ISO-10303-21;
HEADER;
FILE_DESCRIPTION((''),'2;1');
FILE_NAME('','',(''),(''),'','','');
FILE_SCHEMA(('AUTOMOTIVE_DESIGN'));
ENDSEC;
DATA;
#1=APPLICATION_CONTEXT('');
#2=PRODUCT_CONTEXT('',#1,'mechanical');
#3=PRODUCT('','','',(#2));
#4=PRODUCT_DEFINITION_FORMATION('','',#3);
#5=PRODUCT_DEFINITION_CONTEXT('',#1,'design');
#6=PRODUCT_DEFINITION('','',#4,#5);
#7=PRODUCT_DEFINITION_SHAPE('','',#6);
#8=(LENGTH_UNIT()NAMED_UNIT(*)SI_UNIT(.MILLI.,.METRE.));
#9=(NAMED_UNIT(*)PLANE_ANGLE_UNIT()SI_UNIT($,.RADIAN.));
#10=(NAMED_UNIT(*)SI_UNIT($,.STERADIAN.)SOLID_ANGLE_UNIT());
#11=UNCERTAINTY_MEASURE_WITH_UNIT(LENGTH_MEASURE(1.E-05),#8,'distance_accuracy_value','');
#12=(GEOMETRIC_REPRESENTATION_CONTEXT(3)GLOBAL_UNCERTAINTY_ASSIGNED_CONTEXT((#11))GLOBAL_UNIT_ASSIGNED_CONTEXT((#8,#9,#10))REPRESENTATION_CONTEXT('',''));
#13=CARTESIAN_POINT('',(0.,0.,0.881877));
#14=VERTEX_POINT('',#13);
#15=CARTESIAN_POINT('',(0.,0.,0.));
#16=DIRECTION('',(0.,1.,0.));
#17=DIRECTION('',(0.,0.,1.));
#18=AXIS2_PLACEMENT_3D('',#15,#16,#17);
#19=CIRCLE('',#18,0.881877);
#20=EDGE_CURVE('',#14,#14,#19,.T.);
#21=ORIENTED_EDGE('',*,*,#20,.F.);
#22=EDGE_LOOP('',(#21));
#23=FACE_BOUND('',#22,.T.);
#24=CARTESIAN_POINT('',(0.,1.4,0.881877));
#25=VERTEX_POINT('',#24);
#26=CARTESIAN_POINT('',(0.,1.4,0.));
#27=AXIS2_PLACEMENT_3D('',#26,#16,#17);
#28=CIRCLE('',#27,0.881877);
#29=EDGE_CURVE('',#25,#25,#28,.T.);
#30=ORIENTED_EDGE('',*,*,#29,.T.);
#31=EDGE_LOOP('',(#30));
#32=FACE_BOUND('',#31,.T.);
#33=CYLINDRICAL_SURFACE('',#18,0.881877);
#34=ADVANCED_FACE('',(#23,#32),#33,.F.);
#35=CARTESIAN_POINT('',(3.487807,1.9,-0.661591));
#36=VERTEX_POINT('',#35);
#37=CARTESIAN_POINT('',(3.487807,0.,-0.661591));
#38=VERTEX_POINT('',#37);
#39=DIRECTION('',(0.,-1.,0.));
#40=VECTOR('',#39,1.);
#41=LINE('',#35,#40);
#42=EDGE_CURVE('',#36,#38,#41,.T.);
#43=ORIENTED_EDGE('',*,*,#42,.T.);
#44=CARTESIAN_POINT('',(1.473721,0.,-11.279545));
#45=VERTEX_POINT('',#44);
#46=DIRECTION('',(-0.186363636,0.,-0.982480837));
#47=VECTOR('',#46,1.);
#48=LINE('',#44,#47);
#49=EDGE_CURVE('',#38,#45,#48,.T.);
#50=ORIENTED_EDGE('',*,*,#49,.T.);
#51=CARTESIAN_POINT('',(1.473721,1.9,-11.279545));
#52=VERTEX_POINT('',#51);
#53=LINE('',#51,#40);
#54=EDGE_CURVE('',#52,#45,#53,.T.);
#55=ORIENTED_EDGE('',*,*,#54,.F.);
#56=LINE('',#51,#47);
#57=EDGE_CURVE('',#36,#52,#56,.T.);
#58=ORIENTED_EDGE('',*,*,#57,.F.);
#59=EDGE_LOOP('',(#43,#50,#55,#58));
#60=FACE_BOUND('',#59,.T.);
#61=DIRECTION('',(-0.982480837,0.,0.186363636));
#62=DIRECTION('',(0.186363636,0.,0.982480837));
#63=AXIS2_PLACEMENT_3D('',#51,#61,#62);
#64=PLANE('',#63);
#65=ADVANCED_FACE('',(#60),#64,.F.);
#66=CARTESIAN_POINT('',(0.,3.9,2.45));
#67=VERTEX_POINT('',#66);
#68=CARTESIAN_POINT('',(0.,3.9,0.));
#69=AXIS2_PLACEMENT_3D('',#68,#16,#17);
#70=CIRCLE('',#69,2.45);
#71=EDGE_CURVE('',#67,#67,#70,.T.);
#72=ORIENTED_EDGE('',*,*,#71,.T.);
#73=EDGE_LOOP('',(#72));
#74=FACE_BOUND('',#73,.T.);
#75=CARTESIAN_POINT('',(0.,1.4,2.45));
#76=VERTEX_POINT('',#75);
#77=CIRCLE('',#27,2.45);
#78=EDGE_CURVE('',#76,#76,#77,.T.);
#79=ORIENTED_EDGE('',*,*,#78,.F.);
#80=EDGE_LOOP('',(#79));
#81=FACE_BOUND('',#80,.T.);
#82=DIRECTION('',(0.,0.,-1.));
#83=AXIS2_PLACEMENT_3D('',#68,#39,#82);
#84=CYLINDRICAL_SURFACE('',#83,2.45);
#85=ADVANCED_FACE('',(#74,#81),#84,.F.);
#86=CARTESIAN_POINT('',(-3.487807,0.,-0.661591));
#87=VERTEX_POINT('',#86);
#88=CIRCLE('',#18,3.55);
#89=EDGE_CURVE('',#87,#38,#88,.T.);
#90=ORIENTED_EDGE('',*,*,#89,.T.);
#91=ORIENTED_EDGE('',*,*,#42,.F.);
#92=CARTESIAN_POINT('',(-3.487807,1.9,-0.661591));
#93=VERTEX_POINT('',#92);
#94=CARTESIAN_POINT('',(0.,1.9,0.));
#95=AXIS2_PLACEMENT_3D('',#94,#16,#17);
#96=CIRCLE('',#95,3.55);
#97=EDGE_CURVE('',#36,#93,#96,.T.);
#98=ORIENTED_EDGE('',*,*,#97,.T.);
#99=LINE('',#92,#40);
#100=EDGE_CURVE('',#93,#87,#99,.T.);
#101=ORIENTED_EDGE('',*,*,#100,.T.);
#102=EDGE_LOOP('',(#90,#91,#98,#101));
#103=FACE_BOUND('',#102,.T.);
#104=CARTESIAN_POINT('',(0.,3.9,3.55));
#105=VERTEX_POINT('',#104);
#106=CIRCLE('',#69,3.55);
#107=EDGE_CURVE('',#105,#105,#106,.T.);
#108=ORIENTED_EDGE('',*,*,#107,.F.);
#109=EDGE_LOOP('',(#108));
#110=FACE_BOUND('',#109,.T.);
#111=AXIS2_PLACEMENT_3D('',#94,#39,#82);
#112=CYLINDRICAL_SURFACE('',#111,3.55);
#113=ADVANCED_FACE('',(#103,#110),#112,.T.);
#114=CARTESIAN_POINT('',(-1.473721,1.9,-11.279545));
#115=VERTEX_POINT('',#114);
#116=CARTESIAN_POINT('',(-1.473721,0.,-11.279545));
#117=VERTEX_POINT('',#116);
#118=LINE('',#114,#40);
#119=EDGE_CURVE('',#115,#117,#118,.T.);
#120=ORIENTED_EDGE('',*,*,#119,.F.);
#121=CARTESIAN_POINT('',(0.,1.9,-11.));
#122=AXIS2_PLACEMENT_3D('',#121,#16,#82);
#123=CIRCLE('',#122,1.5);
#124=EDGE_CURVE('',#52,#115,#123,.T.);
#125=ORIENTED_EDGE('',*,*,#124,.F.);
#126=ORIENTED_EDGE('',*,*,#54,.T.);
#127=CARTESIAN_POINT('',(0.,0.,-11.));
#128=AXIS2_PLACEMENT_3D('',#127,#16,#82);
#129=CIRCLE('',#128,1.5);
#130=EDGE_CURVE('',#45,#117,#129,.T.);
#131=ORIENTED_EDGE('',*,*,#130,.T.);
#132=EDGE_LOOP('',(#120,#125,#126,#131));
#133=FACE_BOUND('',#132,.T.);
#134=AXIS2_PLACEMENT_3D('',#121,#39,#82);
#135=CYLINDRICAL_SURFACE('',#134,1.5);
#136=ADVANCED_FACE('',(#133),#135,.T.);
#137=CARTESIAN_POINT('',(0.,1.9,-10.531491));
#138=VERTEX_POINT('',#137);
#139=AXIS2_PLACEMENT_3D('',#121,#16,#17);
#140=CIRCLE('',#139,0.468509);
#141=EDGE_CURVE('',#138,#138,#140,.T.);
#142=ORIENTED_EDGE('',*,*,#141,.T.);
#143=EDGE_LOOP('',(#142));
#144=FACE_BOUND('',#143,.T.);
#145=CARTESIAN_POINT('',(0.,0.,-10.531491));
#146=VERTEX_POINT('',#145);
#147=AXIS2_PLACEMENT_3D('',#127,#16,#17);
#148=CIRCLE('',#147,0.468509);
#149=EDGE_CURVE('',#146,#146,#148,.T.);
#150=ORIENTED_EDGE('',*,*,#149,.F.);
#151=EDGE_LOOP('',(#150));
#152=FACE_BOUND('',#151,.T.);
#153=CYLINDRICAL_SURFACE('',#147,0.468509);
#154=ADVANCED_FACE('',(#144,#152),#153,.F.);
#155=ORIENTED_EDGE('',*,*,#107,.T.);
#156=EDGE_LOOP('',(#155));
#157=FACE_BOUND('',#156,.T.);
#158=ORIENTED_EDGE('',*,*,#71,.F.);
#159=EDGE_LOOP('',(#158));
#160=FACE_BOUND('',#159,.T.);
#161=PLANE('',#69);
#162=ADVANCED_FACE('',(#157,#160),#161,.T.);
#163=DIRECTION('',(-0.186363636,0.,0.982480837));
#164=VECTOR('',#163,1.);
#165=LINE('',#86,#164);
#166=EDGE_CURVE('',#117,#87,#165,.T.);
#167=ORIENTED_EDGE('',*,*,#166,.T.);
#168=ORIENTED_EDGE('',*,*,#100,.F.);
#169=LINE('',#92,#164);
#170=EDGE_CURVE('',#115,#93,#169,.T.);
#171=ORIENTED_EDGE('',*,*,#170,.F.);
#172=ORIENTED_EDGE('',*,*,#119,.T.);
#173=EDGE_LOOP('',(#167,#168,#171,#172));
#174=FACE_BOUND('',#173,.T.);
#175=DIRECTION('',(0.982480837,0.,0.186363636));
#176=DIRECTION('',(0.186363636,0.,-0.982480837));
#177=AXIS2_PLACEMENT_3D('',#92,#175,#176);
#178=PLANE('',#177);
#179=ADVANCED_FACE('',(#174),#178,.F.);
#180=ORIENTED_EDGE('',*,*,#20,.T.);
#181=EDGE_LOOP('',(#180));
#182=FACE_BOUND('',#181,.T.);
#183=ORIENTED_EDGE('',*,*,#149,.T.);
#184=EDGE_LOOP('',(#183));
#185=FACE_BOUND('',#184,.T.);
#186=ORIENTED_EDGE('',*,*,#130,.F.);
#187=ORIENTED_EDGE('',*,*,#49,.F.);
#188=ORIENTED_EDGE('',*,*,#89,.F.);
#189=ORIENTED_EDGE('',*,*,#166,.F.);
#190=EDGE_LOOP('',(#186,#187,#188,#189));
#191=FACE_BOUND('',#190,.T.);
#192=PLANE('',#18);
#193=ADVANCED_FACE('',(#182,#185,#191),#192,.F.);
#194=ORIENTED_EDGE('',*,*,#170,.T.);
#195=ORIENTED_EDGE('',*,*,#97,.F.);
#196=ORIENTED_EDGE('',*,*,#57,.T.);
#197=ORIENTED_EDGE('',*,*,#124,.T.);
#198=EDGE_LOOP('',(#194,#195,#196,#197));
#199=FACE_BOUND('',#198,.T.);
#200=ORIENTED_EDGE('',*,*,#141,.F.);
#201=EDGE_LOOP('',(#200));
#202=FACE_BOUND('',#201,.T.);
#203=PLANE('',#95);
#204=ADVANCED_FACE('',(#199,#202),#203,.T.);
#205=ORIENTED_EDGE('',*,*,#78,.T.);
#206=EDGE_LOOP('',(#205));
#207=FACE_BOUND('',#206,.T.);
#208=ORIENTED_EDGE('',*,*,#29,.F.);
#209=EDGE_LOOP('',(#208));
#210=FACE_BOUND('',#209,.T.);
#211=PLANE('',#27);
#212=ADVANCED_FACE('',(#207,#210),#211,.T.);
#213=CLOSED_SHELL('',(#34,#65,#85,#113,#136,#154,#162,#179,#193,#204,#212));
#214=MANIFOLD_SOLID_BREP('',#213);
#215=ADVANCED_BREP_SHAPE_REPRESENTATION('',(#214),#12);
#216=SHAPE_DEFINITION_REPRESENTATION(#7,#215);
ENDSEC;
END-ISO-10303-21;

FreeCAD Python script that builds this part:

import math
import FreeCAD as App
import Part
import Sketcher

V = App.Vector

doc = App.newDocument("Part")
body = doc.addObject("PartDesign::Body", "Body")

sketch1 = body.newObject("Sketcher::SketchObject", "Sketch")
sketch1.AttachmentSupport = (doc.getObject("XZ_Plane"), [""])
sketch1.MapMode = "FlatFace"
sketch1.addGeometry([
    Part.LineSegment(V(-1.5, -11.3, 0), V(-3.5, -0.7, 0)),
    Part.ArcOfCircle(Part.Circle(V(0, 0, 0), V(0, 0, 1), 3.5), math.radians(-11), math.radians(191)),
    Part.LineSegment(V(3.5, -0.7, 0), V(1.5, -11.3, 0)),
    Part.ArcOfCircle(Part.Circle(V(0, -11, 0), V(0, 0, 1), 1.5), math.radians(-169), math.radians(-11)),
], False)
sketch1.addConstraint([
    Sketcher.Constraint("Tangent", 0, 2, 1, 2),
    Sketcher.Constraint("Tangent", 1, 1, 2, 1),
    Sketcher.Constraint("Tangent", 2, 2, 3, 2),
    Sketcher.Constraint("Tangent", 3, 1, 0, 1),
    Sketcher.Constraint("Coincident", 1, 3, -1, 1),
    Sketcher.Constraint("PointOnObject", 3, 3, -2),
    Sketcher.Constraint("Radius", 3, 1.5),
    Sketcher.Constraint("Radius", 1, 3.55),
    Sketcher.Constraint("DistanceY", 3, 3, -1, 1, 11.0),
])
pad1 = body.newObject("PartDesign::Pad", "Pad")
pad1.Profile = sketch1
pad1.Length = 1.9
pad1.Reversed = True

sketch2 = body.newObject("Sketcher::SketchObject", "Sketch001")
sketch2.AttachmentSupport = (doc.getObject("XZ_Plane"), [""])
sketch2.MapMode = "FlatFace"
sketch2.AttachmentOffset = App.Placement(V(0, 0, -1.9), App.Rotation())
sketch2.addGeometry([
    Part.Circle(V(0, 0, 0), V(0, 0, 1), 3.5),
    Part.Circle(V(0, 0, 0), V(0, 0, 1), 2.5),
], False)
sketch2.addConstraint([
    Sketcher.Constraint("Coincident", 0, 3, -1, 1),
    Sketcher.Constraint("Coincident", 1, 3, -1, 1),
    Sketcher.Constraint("Diameter", 0, 7.1),
    Sketcher.Constraint("Diameter", 1, 4.9),
])
pad2 = body.newObject("PartDesign::Pad", "Pad001")
pad2.Profile = sketch2
pad2.Length = 2
pad2.Reversed = True

sketch3 = body.newObject("Sketcher::SketchObject", "Sketch002")
sketch3.AttachmentSupport = (doc.getObject("XZ_Plane"), [""])
sketch3.MapMode = "FlatFace"
sketch3.AttachmentOffset = App.Placement(V(0, 0, -1.4), App.Rotation())
sketch3.addGeometry(Part.Circle(V(0, 0, 0), V(0, 0, 1), 2.5), False)
sketch3.addConstraint([
    Sketcher.Constraint("Coincident", 0, 3, -1, 1),
    Sketcher.Constraint("Diameter", 0, 4.9),
])
pocket1 = body.newObject("PartDesign::Pocket", "Pocket")
pocket1.Profile = sketch3
pocket1.Length = 2.5

sketch4 = body.newObject("Sketcher::SketchObject", "Sketch003")
sketch4.AttachmentSupport = (doc.getObject("XZ_Plane"), [""])
sketch4.MapMode = "FlatFace"
sketch4.AttachmentOffset = App.Placement(V(0, 0, -1.4), App.Rotation())
sketch4.addGeometry([
    Part.Circle(V(0, -11, 0), V(0, 0, 1), 0.47),
    Part.Circle(V(0, 0, 0), V(0, 0, 1), 0.88),
], False)
sketch4.addConstraint([
    Sketcher.Constraint("Coincident", 1, 3, -1, 1),
    Sketcher.Constraint("PointOnObject", 0, 3, -2),
    Sketcher.Constraint("DistanceY", 0, 3, -1, 1, 11.0),
    Sketcher.Constraint("Diameter", 0, 0.937018),
    Sketcher.Constraint("Diameter", 1, 1.763754),
])
pocket2 = body.newObject("PartDesign::Pocket", "Pocket001")
pocket2.Profile = sketch4
pocket2.Type = "ThroughAll"
pocket2.Midplane = True

doc.recompute()
